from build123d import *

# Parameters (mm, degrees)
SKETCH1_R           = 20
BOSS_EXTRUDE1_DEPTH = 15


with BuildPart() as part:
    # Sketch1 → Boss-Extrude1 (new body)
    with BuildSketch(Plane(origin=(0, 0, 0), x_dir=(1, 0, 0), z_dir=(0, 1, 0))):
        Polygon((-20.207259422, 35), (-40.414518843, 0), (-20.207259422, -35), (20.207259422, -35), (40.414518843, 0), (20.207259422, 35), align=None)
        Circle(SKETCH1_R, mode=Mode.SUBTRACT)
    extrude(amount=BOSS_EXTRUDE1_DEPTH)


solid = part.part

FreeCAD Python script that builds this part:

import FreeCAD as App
import Part
import Sketcher

V = App.Vector
Q = App.Units.Quantity


def add_polygon(sketch, points):
    """Adds a closed chain of lines whose ends are joined by coincident constraints."""
    first, n = sketch.GeometryCount, len(points)
    for a, b in zip(points, points[1:] + points[:1]):
        sketch.addGeometry(Part.LineSegment(App.Vector(*a, 0), App.Vector(*b, 0)), False)
    for i in range(n):
        sketch.addConstraint(Sketcher.Constraint("Coincident", first + i, 2, first + (i + 1) % n, 1))

doc = App.newDocument("Part")
body = doc.addObject("PartDesign::Body", "Body")

sketch1 = body.newObject("Sketcher::SketchObject", "Sketch")
sketch1.AttachmentSupport = (doc.getObject("XZ_Plane"), [""])
sketch1.MapMode = "FlatFace"
add_polygon(sketch1, [(-20, -35), (-40, 0), (-20, 35), (20, 35), (40, 0), (20, -35)])
sketch1.addGeometry(Part.Circle(V(0, 0, 0), V(0, 0, 1), 20), False)
sketch1.addConstraint(Sketcher.Constraint("Horizontal", 2))
sketch1.addConstraint(Sketcher.Constraint("Horizontal", 5))
sketch1.addConstraint(Sketcher.Constraint("Coincident", 6, 3, -1, 1))
sketch1.addConstraint(Sketcher.Constraint("Symmetric", 0, 2, 3, 2, -1, 1))
sketch1.addConstraint(Sketcher.Constraint("Symmetric", 1, 2, 4, 2, -1, 1))
sketch1.addConstraint(Sketcher.Constraint("PointOnObject", 0, 2, -1))
sketch1.addConstraint(Sketcher.Constraint("Parallel", 0, 3))
sketch1.addConstraint(Sketcher.Constraint("Vertical", 2, 2, 4, 2))
sketch1.addConstraint(Sketcher.Constraint("Diameter", 6, Q("40 mm")))
sketch1.addConstraint(Sketcher.Constraint("Angle", 0, Q("120 deg")))
sketch1.addConstraint(Sketcher.Constraint("DistanceY", -1, 1, 1, 2, Q("35 mm")))
sketch1.addConstraint(Sketcher.Constraint("DistanceX", 2, 1, 2, 2, Q("40.414519 mm")))
pad1 = body.newObject("PartDesign::Pad", "Pad")
pad1.Profile = sketch1
pad1.Length = 15
pad1.Reversed = True

doc.recompute()
